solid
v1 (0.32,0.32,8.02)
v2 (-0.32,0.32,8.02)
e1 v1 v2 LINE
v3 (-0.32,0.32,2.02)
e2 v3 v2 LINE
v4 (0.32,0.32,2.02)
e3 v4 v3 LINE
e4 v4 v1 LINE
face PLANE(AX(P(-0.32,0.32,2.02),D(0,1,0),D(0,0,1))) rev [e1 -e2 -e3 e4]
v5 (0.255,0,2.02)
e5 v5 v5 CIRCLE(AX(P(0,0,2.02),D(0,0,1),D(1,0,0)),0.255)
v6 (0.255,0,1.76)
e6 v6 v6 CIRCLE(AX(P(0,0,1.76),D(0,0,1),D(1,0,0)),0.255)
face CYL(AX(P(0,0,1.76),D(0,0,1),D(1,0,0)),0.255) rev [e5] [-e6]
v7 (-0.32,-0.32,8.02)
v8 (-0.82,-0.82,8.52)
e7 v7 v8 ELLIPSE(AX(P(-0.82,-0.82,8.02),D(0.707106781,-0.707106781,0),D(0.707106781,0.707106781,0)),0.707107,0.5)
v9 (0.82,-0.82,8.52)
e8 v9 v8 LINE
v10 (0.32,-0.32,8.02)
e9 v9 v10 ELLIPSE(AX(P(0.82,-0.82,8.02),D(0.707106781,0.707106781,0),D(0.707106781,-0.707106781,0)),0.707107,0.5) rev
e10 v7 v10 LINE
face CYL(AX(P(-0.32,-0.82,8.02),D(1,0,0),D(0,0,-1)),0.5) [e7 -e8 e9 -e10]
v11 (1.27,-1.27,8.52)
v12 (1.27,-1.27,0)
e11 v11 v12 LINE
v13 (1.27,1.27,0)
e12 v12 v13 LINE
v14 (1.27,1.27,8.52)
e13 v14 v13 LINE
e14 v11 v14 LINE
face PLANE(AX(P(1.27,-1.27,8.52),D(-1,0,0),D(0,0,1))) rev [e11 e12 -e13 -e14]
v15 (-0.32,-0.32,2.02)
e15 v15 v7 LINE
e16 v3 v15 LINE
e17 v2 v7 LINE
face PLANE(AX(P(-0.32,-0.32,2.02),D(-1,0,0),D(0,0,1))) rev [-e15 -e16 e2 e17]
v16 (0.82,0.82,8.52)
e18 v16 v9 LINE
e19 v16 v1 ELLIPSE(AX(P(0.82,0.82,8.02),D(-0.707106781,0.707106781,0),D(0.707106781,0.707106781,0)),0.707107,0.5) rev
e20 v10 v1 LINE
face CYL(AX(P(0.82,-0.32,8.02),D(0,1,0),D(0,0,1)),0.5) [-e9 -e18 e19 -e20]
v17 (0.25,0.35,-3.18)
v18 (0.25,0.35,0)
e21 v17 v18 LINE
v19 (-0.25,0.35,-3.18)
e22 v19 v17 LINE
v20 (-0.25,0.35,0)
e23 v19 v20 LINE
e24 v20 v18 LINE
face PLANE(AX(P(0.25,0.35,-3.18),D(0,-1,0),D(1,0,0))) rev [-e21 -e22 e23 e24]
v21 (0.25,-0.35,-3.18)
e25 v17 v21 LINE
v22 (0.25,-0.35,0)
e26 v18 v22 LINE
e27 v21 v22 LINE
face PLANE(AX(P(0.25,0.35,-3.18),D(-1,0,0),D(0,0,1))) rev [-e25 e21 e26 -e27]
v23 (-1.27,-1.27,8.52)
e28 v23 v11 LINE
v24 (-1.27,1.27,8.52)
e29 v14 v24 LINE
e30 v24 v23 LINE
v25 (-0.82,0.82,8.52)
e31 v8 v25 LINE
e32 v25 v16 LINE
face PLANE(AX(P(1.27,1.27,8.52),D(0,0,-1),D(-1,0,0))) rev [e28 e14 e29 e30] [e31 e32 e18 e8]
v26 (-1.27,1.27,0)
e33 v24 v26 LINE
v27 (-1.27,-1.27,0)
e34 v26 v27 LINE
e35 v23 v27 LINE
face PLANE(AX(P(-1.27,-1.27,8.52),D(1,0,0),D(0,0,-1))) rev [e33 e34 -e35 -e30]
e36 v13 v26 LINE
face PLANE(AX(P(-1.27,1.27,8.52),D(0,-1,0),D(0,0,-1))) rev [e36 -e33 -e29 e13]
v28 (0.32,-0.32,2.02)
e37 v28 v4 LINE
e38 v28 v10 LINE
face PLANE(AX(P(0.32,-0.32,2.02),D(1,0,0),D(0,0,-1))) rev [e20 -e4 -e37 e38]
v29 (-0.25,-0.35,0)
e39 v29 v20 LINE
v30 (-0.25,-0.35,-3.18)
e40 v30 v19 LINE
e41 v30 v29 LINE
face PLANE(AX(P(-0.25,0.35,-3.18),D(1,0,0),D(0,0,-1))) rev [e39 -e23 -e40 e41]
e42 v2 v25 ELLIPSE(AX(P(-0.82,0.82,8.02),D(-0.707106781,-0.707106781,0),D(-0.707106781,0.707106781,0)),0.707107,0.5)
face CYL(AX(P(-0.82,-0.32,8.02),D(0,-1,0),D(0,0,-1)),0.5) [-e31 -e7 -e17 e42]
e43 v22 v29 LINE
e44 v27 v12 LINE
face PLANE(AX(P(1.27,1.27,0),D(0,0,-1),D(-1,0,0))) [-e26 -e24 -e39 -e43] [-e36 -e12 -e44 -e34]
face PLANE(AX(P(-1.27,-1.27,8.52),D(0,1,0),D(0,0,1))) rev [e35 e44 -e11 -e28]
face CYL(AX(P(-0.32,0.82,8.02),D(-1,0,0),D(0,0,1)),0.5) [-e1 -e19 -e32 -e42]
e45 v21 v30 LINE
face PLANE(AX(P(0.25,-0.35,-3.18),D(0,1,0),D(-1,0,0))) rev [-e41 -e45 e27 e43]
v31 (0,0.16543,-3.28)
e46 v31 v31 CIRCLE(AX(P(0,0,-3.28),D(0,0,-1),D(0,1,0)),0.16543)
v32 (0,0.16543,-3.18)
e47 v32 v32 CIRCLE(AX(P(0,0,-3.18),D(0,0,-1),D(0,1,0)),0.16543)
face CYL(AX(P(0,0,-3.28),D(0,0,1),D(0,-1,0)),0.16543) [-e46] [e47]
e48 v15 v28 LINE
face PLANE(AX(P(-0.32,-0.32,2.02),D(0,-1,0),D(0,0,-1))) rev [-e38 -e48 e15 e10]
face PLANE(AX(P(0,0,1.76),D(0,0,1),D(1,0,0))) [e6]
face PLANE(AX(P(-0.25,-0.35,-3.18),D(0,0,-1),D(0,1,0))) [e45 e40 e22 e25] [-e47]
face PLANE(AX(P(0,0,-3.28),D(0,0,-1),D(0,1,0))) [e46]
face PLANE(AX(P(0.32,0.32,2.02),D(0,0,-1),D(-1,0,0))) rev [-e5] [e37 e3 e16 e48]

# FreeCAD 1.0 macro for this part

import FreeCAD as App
import Part
import Sketcher

V = App.Vector


def edges_at(feature, points):
    """Names of the edges that pass closest to the given points."""
    edges = feature.Shape.Edges
    near = lambda p: min(range(len(edges)), key=lambda i: edges[i].distToShape(Part.Vertex(*p))[0])
    return sorted({f"Edge{near(p) + 1}" for p in points})


def add_polygon(sketch, points):
    """Adds a closed chain of lines whose ends are joined by coincident constraints."""
    first, n = sketch.GeometryCount, len(points)
    for a, b in zip(points, points[1:] + points[:1]):
        sketch.addGeometry(Part.LineSegment(App.Vector(*a, 0), App.Vector(*b, 0)), False)
    for i in range(n):
        sketch.addConstraint(Sketcher.Constraint("Coincident", first + i, 2, first + (i + 1) % n, 1))

doc = App.newDocument("Part")
body = doc.addObject("PartDesign::Body", "Body")

# Sketch on XY plane
sketch1 = body.newObject("Sketcher::SketchObject", "Sketch")
sketch1.AttachmentSupport = (doc.getObject("XY_Plane"), [""])
sketch1.MapMode = "FlatFace"
add_polygon(sketch1, [(-1.3, 1.3), (-1.3, -1.3), (1.3, -1.3), (1.3, 1.3)])  # lines 0-3
sketch1.addConstraint([
    Sketcher.Constraint("Vertical", 0),
    Sketcher.Constraint("Horizontal", 1),
    Sketcher.Constraint("Vertical", 2),
    Sketcher.Constraint("Horizontal", 3),
    Sketcher.Constraint("Symmetric", 0, 2, 2, 2, -1, 1),
    Sketcher.Constraint("Equal", 3, 0),
    Sketcher.Constraint("DistanceX", 1, 1, 1, 2, 2.54),
])
pad1 = body.newObject("PartDesign::Pad", "Pad")
pad1.Profile = sketch1
pad1.Length = 8.52

# Sketch on XY plane
sketch2 = body.newObject("Sketcher::SketchObject", "Sketch001")
sketch2.AttachmentSupport = (doc.getObject("XY_Plane"), [""])
sketch2.MapMode = "FlatFace"
sketch2.AttachmentOffset = App.Placement(V(0, 0, 8.52), App.Rotation())
add_polygon(sketch2, [(-0.3, 0.3), (-0.3, -0.3), (0.3, -0.3), (0.3, 0.3)])  # lines 0-3
sketch2.addConstraint([
    Sketcher.Constraint("Vertical", 0),
    Sketcher.Constraint("Horizontal", 1),
    Sketcher.Constraint("Vertical", 2),
    Sketcher.Constraint("Horizontal", 3),
    Sketcher.Constraint("Symmetric", 0, 2, 2, 2, -1, 1),
    Sketcher.Constraint("Equal", 3, 0),
    Sketcher.Constraint("DistanceX", 1, 1, 1, 2, 0.64),
])
pocket1 = body.newObject("PartDesign::Pocket", "Pocket")
pocket1.Profile = sketch2
pocket1.Length = 6.5
doc.recompute()

fillet = body.newObject("PartDesign::Fillet", "Fillet")
fillet.Base = (pocket1, edges_at(pocket1, [
    (0.32, 0, 8.52),
    (0, 0.32, 8.52),
    (-0.32, 0, 8.52),
    (0, -0.32, 8.52),
]))
fillet.Radius = 0.5

# Sketch on XY plane
sketch3 = body.newObject("Sketcher::SketchObject", "Sketch002")
sketch3.AttachmentSupport = (doc.getObject("XY_Plane"), [""])
sketch3.MapMode = "FlatFace"
add_polygon(sketch3, [(-0.2, -0.3), (-0.2, 0.3), (0.2, 0.3), (0.2, -0.3)])  # lines 0-3
sketch3.addConstraint([
    Sketcher.Constraint("Vertical", 0),
    Sketcher.Constraint("Horizontal", 1),
    Sketcher.Constraint("Vertical", 2),
    Sketcher.Constraint("Horizontal", 3),
    Sketcher.Constraint("Symmetric", 0, 2, 2, 2, -1, 1),
    Sketcher.Constraint("DistanceX", 1, 1, 1, 2, 0.5),
    Sketcher.Constraint("DistanceY", 0, 1, 0, 2, 0.7),
])
pad2 = body.newObject("PartDesign::Pad", "Pad001")
pad2.Profile = sketch3
pad2.Length = 3.18
pad2.Reversed = True

# Sketch on XY plane
sketch4 = body.newObject("Sketcher::SketchObject", "Sketch003")
sketch4.AttachmentSupport = (doc.getObject("XY_Plane"), [""])
sketch4.MapMode = "FlatFace"
sketch4.AttachmentOffset = App.Placement(V(0, 0, 2.02), App.Rotation())
sketch4.addGeometry(Part.Circle(V(0, 0, 0), V(0, 0, 1), 0.26), False)
sketch4.addConstraint([
    Sketcher.Constraint("Coincident", 0, 3, -1, 1),
    Sketcher.Constraint("Diameter", 0, 0.51),
])
pocket2 = body.newObject("PartDesign::Pocket", "Pocket001")
pocket2.Profile = sketch4
pocket2.Length = 0.26

# Sketch on XY plane
sketch5 = body.newObject("Sketcher::SketchObject", "Sketch004")
sketch5.AttachmentSupport = (doc.getObject("XY_Plane"), [""])
sketch5.MapMode = "FlatFace"
sketch5.AttachmentOffset = App.Placement(V(0, 0, -3.18), App.Rotation())
sketch5.addGeometry(Part.Circle(V(0, 0, 0), V(0, 0, 1), 0.17), False)
sketch5.addConstraint([
    Sketcher.Constraint("Coincident", 0, 3, -1, 1),
    Sketcher.Constraint("Diameter", 0, 0.33086),
])
pad3 = body.newObject("PartDesign::Pad", "Pad002")
pad3.Profile = sketch5
pad3.Length = 0.1
pad3.Reversed = True

doc.recompute()
